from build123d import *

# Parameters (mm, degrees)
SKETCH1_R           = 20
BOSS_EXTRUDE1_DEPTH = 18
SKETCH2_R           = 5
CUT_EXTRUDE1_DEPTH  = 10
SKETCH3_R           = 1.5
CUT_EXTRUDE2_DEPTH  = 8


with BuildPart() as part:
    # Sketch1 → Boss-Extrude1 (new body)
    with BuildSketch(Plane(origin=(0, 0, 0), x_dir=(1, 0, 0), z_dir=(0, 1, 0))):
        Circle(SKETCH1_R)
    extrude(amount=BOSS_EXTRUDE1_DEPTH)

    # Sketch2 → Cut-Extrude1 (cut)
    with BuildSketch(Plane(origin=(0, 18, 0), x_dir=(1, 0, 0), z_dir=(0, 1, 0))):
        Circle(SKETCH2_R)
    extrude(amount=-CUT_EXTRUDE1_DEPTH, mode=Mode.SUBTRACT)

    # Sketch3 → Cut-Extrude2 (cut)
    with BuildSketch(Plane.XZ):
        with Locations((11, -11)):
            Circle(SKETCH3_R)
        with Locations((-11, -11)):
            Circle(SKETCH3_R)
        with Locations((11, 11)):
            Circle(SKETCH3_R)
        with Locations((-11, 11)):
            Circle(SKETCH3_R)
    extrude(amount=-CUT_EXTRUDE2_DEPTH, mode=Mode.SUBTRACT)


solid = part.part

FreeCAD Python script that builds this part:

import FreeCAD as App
import Part
import Sketcher
from FreeCAD import Vector
Q = App.Units.Quantity

doc = App.newDocument("Part")
params = doc.addObject("Spreadsheet::Sheet", "Params")
for row, (alias, value) in enumerate([
    ("sketch1_diameter", "40 mm"),
    ("pad1_length", "18 mm"),
    ("sketch2_diameter", "10 mm"),
    ("pocket1_length", "10 mm"),
    ("sketch3_diameter", "3 mm"),
    ("pocket2_length", "8 mm"),
], start=1):
    params.set(f"A{row}", alias)
    params.set(f"B{row}", "=" + value)
    params.setAlias(f"B{row}", alias)

body = doc.addObject("PartDesign::Body", "Body")

sketch1 = doc.addObject("Sketcher::SketchObject", "Sketch")
body.addObject(sketch1)
sketch1.AttachmentSupport = (doc.XZ_Plane, [""])
sketch1.MapMode = "FlatFace"
sketch1.addGeometry(Part.Circle(Vector(0, 0, 0), Vector(0, 0, 1), 20), False)
sketch1.addConstraint([
    Sketcher.Constraint("Coincident", 0, 3, -1, 1),
    Sketcher.Constraint("Diameter", 0, Q("40 mm")),
])
sketch1.setExpression("Constraints[1]", "Params.sketch1_diameter")
pad1 = doc.addObject("PartDesign::Pad", "Pad")
body.addObject(pad1)
pad1.Profile = sketch1
pad1.setExpression("Length", "Params.pad1_length")
pad1.Reversed = True

sketch2 = doc.addObject("Sketcher::SketchObject", "Sketch001")
body.addObject(sketch2)
sketch2.AttachmentSupport = (doc.XZ_Plane, [""])
sketch2.MapMode = "FlatFace"
sketch2.AttachmentOffset = App.Placement(Vector(0, 0, -18), App.Rotation())
sketch2.addGeometry(Part.Circle(Vector(0, 0, 0), Vector(0, 0, 1), 5), False)
sketch2.addConstraint([
    Sketcher.Constraint("Coincident", 0, 3, -1, 1),
    Sketcher.Constraint("Diameter", 0, Q("10 mm")),
])
sketch2.setExpression("Constraints[1]", "Params.sketch2_diameter")
pocket1 = doc.addObject("PartDesign::Pocket", "Pocket")
body.addObject(pocket1)
pocket1.Profile = sketch2
pocket1.setExpression("Length", "Params.pocket1_length")
pocket1.Reversed = True

sketch3 = doc.addObject("Sketcher::SketchObject", "Sketch002")
body.addObject(sketch3)
sketch3.AttachmentSupport = (doc.XZ_Plane, [""])
sketch3.MapMode = "FlatFace"
sketch3.addGeometry([
    Part.Circle(Vector(11, -11, 0), Vector(0, 0, 1), 1.5),
    Part.Circle(Vector(-11, -11, 0), Vector(0, 0, 1), 1.5),
    Part.Circle(Vector(11, 11, 0), Vector(0, 0, 1), 1.5),
    Part.Circle(Vector(-11, 11, 0), Vector(0, 0, 1), 1.5),
], False)
sketch3.addConstraint([
    Sketcher.Constraint("Equal", 0, 1),
    Sketcher.Constraint("Equal", 1, 2),
    Sketcher.Constraint("Equal", 2, 3),
    Sketcher.Constraint("Symmetric", 1, 3, 2, 3, -1, 1),
    Sketcher.Constraint("Symmetric", 0, 3, 3, 3, -1, 1),
    Sketcher.Constraint("Symmetric", 0, 3, 1, 3, -2),
    Sketcher.Constraint("Diameter", 0, Q("3 mm")),
    Sketcher.Constraint("DistanceX", -1, 1, 0, 3, Q("11 mm")),
    Sketcher.Constraint("DistanceY", 0, 3, -1, 1, Q("11 mm")),
])
sketch3.setExpression("Constraints[6]", "Params.sketch3_diameter")
pocket2 = doc.addObject("PartDesign::Pocket", "Pocket001")
body.addObject(pocket2)
pocket2.Profile = sketch3
pocket2.setExpression("Length", "Params.pocket2_length")

doc.recompute()
